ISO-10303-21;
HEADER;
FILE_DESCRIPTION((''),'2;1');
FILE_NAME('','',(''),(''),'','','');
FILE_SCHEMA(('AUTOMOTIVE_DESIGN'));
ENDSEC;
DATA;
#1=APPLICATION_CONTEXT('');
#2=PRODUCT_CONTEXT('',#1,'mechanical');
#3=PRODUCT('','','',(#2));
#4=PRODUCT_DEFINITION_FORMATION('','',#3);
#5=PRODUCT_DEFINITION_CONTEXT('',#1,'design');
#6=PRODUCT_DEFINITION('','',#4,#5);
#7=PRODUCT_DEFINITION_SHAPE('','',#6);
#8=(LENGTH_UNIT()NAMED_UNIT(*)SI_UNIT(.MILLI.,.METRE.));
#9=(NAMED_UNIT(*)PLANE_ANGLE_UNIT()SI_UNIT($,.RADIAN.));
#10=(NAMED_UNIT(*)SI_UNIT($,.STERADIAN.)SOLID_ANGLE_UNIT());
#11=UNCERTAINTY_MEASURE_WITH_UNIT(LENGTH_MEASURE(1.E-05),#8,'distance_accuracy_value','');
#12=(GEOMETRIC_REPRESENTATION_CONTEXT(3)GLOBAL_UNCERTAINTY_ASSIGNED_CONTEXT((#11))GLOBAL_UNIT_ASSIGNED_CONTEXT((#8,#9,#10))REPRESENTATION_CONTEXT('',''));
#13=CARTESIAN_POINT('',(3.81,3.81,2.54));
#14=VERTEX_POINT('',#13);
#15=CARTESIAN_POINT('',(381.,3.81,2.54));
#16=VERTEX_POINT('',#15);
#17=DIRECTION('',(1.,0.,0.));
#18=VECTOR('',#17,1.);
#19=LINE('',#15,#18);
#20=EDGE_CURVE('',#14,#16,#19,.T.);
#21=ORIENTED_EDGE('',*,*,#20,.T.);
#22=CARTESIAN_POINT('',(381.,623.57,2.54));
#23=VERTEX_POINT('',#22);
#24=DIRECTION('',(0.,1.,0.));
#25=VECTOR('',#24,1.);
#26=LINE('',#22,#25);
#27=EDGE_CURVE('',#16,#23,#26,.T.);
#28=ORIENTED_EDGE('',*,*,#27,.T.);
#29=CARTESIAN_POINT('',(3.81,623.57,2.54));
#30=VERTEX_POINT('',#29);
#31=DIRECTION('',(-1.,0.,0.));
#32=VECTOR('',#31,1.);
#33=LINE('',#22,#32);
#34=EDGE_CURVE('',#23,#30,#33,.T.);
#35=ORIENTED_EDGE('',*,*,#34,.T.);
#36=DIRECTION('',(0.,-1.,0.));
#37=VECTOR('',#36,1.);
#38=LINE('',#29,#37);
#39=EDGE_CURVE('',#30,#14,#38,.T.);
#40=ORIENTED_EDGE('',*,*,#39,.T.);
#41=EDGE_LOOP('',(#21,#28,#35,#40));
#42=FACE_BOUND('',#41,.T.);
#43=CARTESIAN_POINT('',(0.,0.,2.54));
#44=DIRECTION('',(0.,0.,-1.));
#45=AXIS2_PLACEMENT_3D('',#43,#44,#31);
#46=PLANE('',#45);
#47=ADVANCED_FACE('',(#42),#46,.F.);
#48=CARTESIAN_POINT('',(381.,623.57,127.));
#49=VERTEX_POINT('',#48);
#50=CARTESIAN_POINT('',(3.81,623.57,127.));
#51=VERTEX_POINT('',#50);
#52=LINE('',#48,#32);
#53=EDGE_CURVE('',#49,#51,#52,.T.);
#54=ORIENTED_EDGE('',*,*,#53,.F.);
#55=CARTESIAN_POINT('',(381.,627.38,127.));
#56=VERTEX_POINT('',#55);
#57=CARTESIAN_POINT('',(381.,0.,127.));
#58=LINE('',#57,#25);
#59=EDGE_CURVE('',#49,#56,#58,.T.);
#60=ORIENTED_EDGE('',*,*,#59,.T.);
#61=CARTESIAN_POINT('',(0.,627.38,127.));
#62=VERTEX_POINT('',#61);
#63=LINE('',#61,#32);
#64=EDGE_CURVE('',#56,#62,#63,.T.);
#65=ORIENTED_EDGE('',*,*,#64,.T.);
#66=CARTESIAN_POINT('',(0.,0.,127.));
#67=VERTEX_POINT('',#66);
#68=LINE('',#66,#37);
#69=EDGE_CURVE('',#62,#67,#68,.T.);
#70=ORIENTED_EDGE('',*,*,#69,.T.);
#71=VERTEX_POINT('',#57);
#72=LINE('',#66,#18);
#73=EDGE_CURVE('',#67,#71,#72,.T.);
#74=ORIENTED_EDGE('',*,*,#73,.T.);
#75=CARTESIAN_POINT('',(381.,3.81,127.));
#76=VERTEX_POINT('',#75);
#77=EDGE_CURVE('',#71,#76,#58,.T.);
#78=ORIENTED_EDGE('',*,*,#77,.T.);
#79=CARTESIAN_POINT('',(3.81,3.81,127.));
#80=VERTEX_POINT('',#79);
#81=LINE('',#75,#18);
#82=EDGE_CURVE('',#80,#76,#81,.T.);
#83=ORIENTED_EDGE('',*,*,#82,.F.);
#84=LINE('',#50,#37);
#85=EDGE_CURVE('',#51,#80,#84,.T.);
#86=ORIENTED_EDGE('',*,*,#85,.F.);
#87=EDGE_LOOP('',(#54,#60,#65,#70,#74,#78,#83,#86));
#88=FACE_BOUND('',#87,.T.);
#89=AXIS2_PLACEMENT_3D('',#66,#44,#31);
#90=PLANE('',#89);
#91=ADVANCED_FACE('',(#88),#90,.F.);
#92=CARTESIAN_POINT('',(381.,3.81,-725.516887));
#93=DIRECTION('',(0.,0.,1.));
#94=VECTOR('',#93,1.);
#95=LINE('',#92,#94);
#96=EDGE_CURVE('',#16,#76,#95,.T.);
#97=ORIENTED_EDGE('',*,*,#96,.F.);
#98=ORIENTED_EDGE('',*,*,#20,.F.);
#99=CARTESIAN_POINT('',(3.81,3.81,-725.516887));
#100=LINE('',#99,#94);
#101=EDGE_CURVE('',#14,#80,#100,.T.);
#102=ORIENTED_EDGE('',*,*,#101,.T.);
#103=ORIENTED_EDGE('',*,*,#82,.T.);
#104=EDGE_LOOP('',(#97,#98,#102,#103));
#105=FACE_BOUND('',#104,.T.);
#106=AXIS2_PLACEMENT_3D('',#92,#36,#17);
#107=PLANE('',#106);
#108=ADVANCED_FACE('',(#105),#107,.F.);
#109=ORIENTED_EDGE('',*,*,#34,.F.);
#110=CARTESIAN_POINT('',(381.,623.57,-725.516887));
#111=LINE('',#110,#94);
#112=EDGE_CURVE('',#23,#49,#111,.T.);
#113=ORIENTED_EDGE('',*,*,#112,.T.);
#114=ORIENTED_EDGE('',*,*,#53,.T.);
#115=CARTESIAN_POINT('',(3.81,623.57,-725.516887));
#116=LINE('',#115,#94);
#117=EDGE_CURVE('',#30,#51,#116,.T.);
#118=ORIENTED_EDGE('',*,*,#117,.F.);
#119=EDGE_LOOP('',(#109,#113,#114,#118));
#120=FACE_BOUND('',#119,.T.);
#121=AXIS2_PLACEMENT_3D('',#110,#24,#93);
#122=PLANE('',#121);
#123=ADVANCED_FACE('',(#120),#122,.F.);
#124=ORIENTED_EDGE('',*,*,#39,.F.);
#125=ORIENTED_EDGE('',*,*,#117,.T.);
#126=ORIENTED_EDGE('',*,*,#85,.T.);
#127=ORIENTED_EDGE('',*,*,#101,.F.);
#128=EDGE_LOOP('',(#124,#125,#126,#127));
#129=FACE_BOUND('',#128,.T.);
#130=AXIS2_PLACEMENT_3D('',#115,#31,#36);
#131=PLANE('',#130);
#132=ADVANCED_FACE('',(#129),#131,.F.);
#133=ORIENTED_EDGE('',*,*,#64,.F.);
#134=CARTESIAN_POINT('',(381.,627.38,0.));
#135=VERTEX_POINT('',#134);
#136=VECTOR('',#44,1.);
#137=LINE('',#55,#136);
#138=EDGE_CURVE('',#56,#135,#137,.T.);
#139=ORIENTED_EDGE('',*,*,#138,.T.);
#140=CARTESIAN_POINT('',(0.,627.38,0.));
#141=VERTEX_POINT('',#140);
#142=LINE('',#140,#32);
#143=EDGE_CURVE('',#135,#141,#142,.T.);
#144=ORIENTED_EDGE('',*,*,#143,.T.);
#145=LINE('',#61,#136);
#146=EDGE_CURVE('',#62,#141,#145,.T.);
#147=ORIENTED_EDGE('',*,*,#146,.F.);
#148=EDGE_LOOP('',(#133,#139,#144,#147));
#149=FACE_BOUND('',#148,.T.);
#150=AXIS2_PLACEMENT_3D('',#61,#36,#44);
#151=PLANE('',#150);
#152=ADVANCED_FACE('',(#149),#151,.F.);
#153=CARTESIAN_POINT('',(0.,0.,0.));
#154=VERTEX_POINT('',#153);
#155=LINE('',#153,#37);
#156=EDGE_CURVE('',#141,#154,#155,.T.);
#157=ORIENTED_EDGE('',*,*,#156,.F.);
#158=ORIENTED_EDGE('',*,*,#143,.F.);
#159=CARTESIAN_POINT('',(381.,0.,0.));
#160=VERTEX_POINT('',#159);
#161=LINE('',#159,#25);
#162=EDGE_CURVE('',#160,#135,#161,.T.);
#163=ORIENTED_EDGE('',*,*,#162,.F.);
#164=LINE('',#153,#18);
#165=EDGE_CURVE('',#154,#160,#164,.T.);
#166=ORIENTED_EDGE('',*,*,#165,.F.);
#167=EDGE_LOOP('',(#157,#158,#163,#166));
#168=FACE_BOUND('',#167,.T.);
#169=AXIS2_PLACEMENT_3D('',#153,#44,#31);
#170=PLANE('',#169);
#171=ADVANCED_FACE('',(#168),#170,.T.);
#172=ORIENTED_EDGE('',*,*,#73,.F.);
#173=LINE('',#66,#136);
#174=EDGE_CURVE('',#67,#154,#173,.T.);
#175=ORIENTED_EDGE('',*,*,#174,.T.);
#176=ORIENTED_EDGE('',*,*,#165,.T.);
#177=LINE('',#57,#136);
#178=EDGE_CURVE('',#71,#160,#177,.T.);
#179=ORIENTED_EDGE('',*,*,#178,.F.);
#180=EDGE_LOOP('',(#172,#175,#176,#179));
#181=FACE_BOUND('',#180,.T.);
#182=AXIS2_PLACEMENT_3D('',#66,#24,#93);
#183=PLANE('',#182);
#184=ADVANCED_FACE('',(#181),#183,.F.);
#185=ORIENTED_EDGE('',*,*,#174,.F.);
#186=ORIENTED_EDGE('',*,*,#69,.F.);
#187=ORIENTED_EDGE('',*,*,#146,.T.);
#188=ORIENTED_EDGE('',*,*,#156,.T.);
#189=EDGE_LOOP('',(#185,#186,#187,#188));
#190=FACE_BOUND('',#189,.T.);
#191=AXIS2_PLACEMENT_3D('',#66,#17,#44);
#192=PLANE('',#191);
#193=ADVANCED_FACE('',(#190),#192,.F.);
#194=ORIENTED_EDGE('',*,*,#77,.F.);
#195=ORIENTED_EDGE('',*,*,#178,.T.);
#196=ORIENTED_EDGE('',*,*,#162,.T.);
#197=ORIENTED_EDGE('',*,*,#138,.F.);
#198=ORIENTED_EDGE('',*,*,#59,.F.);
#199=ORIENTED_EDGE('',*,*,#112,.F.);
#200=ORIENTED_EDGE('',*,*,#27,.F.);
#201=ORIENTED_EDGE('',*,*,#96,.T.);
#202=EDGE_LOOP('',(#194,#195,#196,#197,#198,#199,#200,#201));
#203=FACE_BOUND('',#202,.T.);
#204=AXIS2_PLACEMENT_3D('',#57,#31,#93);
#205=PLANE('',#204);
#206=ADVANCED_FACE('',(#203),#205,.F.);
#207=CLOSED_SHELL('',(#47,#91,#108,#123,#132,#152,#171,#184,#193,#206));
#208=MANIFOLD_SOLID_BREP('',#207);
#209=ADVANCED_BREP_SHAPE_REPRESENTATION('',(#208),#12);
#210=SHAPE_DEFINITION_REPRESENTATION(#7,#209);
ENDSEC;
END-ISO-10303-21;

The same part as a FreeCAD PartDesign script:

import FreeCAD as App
import Part
import Sketcher
from FreeCAD import Vector
Q = App.Units.Quantity

doc = App.newDocument("Part")
body = doc.addObject("PartDesign::Body", "Body")

# Sketch on XY plane
sketch1 = body.newObject("Sketcher::SketchObject", "Sketch")
sketch1.AttachmentSupport = (doc.getObject("XY_Plane"), [""])
sketch1.MapMode = "FlatFace"
sketch1.addGeometry(Part.LineSegment(Vector(0, 627.38, 0), Vector(0, 0, 0)), False)
sketch1.addGeometry(Part.LineSegment(Vector(0, 0, 0), Vector(381, 0, 0)), False)
sketch1.addGeometry(Part.LineSegment(Vector(381, 0, 0), Vector(381, 627.38, 0)), False)
sketch1.addGeometry(Part.LineSegment(Vector(381, 627.38, 0), Vector(0, 627.38, 0)), False)
sketch1.addConstraint(Sketcher.Constraint("Coincident", 0, 2, 1, 1))
sketch1.addConstraint(Sketcher.Constraint("Coincident", 1, 2, 2, 1))
sketch1.addConstraint(Sketcher.Constraint("Coincident", 2, 2, 3, 1))
sketch1.addConstraint(Sketcher.Constraint("Coincident", 3, 2, 0, 1))
sketch1.addConstraint(Sketcher.Constraint("Vertical", 0))
sketch1.addConstraint(Sketcher.Constraint("Horizontal", 1))
sketch1.addConstraint(Sketcher.Constraint("Vertical", 2))
sketch1.addConstraint(Sketcher.Constraint("Horizontal", 3))
sketch1.addConstraint(Sketcher.Constraint("Coincident", 0, 2, -1, 1))
sketch1.addConstraint(Sketcher.Constraint("DistanceX", 1, 1, 1, 2, Q("15 in")))
sketch1.addConstraint(Sketcher.Constraint("DistanceY", 0, 2, 0, 1, Q("24.7 in")))
pad1 = body.newObject("PartDesign::Pad", "Pad")
pad1.Profile = sketch1
pad1.Length = Q("5 in")

# Sketch on XY plane
sketch2 = body.newObject("Sketcher::SketchObject", "Sketch001")
sketch2.AttachmentSupport = (doc.getObject("XY_Plane"), [""])
sketch2.MapMode = "FlatFace"
sketch2.AttachmentOffset = App.Placement(Vector(0, 0, 5 * 25.4), App.Rotation())
sketch2.addGeometry(Part.LineSegment(Vector(3.81, 623.57, 0), Vector(3.81, 3.81, 0)), False)
sketch2.addGeometry(Part.LineSegment(Vector(3.81, 3.81, 0), Vector(381, 3.81, 0)), False)
sketch2.addGeometry(Part.LineSegment(Vector(381, 3.81, 0), Vector(381, 623.57, 0)), False)
sketch2.addGeometry(Part.LineSegment(Vector(381, 623.57, 0), Vector(3.81, 623.57, 0)), False)
sketch2.addConstraint(Sketcher.Constraint("Coincident", 0, 2, 1, 1))
sketch2.addConstraint(Sketcher.Constraint("Coincident", 1, 2, 2, 1))
sketch2.addConstraint(Sketcher.Constraint("Coincident", 2, 2, 3, 1))
sketch2.addConstraint(Sketcher.Constraint("Coincident", 3, 2, 0, 1))
sketch2.addConstraint(Sketcher.Constraint("Vertical", 0))
sketch2.addConstraint(Sketcher.Constraint("Horizontal", 1))
sketch2.addConstraint(Sketcher.Constraint("Vertical", 2))
sketch2.addConstraint(Sketcher.Constraint("Horizontal", 3))
sketch2.addConstraint(Sketcher.Constraint("DistanceY", 0, 2, 0, 1, Q("24.4 in")))
sketch2.addConstraint(Sketcher.Constraint("DistanceX", -1, 1, 1, 2, Q("15 in")))
sketch2.addConstraint(Sketcher.Constraint("DistanceX", 1, 1, 1, 2, Q("14.85 in")))
sketch2.addConstraint(Sketcher.Constraint("DistanceY", -1, 1, 0, 2, Q("0.15 in")))
pocket1 = body.newObject("PartDesign::Pocket", "Pocket")
pocket1.Profile = sketch2
pocket1.Length = Q("4.9 in")

doc.recompute()
